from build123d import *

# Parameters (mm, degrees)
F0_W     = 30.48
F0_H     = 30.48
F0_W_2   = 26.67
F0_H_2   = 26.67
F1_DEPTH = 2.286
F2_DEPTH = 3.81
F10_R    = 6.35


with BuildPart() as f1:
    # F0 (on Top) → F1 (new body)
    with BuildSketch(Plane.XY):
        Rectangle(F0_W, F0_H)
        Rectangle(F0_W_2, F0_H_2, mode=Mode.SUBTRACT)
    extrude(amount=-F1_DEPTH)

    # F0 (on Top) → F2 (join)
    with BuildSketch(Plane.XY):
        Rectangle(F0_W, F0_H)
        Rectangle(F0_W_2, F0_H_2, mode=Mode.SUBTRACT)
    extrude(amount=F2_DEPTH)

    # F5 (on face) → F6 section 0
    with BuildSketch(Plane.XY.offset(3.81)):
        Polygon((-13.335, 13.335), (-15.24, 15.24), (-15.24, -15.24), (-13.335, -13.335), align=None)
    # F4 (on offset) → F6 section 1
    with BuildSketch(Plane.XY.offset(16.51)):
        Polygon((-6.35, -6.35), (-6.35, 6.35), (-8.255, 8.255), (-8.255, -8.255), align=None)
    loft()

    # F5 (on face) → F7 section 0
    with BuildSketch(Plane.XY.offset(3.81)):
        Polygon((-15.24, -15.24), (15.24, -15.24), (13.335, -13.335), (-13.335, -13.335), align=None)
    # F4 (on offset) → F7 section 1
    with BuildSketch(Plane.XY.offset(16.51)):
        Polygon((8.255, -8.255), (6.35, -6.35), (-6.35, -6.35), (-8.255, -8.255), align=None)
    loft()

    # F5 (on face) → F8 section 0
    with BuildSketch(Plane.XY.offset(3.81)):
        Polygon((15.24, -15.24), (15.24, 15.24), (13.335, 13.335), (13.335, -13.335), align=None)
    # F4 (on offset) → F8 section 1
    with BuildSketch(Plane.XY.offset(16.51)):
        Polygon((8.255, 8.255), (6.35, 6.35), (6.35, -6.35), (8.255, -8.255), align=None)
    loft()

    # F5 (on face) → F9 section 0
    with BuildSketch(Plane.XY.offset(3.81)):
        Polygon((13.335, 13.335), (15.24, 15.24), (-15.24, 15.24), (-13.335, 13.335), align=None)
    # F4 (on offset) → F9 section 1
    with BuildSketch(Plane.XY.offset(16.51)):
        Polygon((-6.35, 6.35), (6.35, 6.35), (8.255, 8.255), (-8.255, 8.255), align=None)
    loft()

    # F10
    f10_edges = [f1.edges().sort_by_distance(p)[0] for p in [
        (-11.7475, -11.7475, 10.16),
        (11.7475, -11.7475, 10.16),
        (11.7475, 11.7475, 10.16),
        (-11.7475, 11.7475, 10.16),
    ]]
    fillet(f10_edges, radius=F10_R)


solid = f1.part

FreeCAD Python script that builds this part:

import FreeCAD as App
import Part
import Sketcher
Q = App.Units.Quantity


def edges_at(feature, points):
    """Names of the edges that pass closest to the given points."""
    edges = feature.Shape.Edges
    near = lambda p: min(range(len(edges)), key=lambda i: edges[i].distToShape(Part.Vertex(*p))[0])
    return sorted({f"Edge{near(p) + 1}" for p in points})

doc = App.newDocument("Part")
params = doc.addObject("Spreadsheet::Sheet", "Params")
for row, (alias, value) in enumerate([
    ("sketch1_width", "1.2 in"),
    ("sketch1_width2", "1.05 in"),
    ("pad1_length", "0.09 in"),
    ("sketch2_width", "1.2 in"),
    ("sketch2_width2", "1.05 in"),
    ("pad2_length", "0.15 in"),
    ("sketch3_height", "1.2 in"),
    ("sketch3_height2", "1.05 in"),
    ("sketch4_height", "0.5 in"),
    ("sketch4_height2", "0.65 in"),
    ("sketch5_width", "1.2 in"),
    ("sketch5_width2", "1.05 in"),
    ("sketch6_width", "0.5 in"),
    ("sketch6_width2", "0.65 in"),
    ("sketch7_height", "1.2 in"),
    ("sketch7_height2", "1.05 in"),
    ("sketch8_height", "0.5 in"),
    ("sketch8_height2", "0.65 in"),
    ("sketch9_width", "1.2 in"),
    ("sketch9_width2", "1.05 in"),
    ("sketch10_width", "0.5 in"),
    ("sketch10_width2", "0.65 in"),
    ("fillet_radius", "0.25 in"),
], start=1):
    params.set(f"A{row}", alias)
    params.set(f"B{row}", "=" + value)
    params.setAlias(f"B{row}", alias)

body = doc.addObject("PartDesign::Body", "Body")

# Sketch on XY plane
sketch1 = body.newObject("Sketcher::SketchObject", "Sketch")
sketch1.AttachmentSupport = (doc.getObject("XY_Plane"), [""])
sketch1.MapMode = "FlatFace"
sketch1.addGeometry([
    Part.LineSegment(App.Vector(-15, 15, 0), App.Vector(-15, -15, 0)),  # 0
    Part.LineSegment(App.Vector(-15, -15, 0), App.Vector(15, -15, 0)),  # 1
    Part.LineSegment(App.Vector(15, -15, 0), App.Vector(15, 15, 0)),  # 2
    Part.LineSegment(App.Vector(15, 15, 0), App.Vector(-15, 15, 0)),  # 3
    Part.LineSegment(App.Vector(13, -13, 0), App.Vector(-13, -13, 0)),  # 4
    Part.LineSegment(App.Vector(-13, -13, 0), App.Vector(-13, 13, 0)),  # 5
    Part.LineSegment(App.Vector(-13, 13, 0), App.Vector(13, 13, 0)),  # 6
    Part.LineSegment(App.Vector(13, 13, 0), App.Vector(13, -13, 0)),  # 7
], False)
sketch1.addConstraint([
    Sketcher.Constraint("Coincident", 0, 2, 1, 1),
    Sketcher.Constraint("Coincident", 1, 2, 2, 1),
    Sketcher.Constraint("Coincident", 2, 2, 3, 1),
    Sketcher.Constraint("Coincident", 3, 2, 0, 1),
    Sketcher.Constraint("Coincident", 4, 2, 5, 1),
    Sketcher.Constraint("Coincident", 5, 2, 6, 1),
    Sketcher.Constraint("Coincident", 6, 2, 7, 1),
    Sketcher.Constraint("Coincident", 7, 2, 4, 1),
    Sketcher.Constraint("Vertical", 0),
    Sketcher.Constraint("Horizontal", 1),
    Sketcher.Constraint("Vertical", 2),
    Sketcher.Constraint("Horizontal", 3),
    Sketcher.Constraint("Horizontal", 4),
    Sketcher.Constraint("Vertical", 5),
    Sketcher.Constraint("Horizontal", 6),
    Sketcher.Constraint("Vertical", 7),
    Sketcher.Constraint("Symmetric", 0, 2, 2, 2, -1, 1),
    Sketcher.Constraint("Symmetric", 4, 2, 6, 2, -1, 1),
    Sketcher.Constraint("Equal", 3, 0),
    Sketcher.Constraint("Equal", 6, 5),
    Sketcher.Constraint("DistanceX", 1, 1, 1, 2, Q("1.2 in")),
    Sketcher.Constraint("DistanceX", 4, 2, 4, 1, Q("1.05 in")),
])
sketch1.setExpression("Constraints[20]", "Params.sketch1_width")
sketch1.setExpression("Constraints[21]", "Params.sketch1_width2")
pad1 = body.newObject("PartDesign::Pad", "Pad")
pad1.Profile = sketch1
pad1.setExpression("Length", "Params.pad1_length")
pad1.Reversed = True

# Sketch on XY plane
sketch2 = body.newObject("Sketcher::SketchObject", "Sketch001")
sketch2.AttachmentSupport = (doc.getObject("XY_Plane"), [""])
sketch2.MapMode = "FlatFace"
sketch2.addGeometry([
    Part.LineSegment(App.Vector(-15, 15, 0), App.Vector(-15, -15, 0)),  # 0
    Part.LineSegment(App.Vector(-15, -15, 0), App.Vector(15, -15, 0)),  # 1
    Part.LineSegment(App.Vector(15, -15, 0), App.Vector(15, 15, 0)),  # 2
    Part.LineSegment(App.Vector(15, 15, 0), App.Vector(-15, 15, 0)),  # 3
    Part.LineSegment(App.Vector(13, -13, 0), App.Vector(-13, -13, 0)),  # 4
    Part.LineSegment(App.Vector(-13, -13, 0), App.Vector(-13, 13, 0)),  # 5
    Part.LineSegment(App.Vector(-13, 13, 0), App.Vector(13, 13, 0)),  # 6
    Part.LineSegment(App.Vector(13, 13, 0), App.Vector(13, -13, 0)),  # 7
], False)
sketch2.addConstraint([
    Sketcher.Constraint("Coincident", 0, 2, 1, 1),
    Sketcher.Constraint("Coincident", 1, 2, 2, 1),
    Sketcher.Constraint("Coincident", 2, 2, 3, 1),
    Sketcher.Constraint("Coincident", 3, 2, 0, 1),
    Sketcher.Constraint("Coincident", 4, 2, 5, 1),
    Sketcher.Constraint("Coincident", 5, 2, 6, 1),
    Sketcher.Constraint("Coincident", 6, 2, 7, 1),
    Sketcher.Constraint("Coincident", 7, 2, 4, 1),
    Sketcher.Constraint("Vertical", 0),
    Sketcher.Constraint("Horizontal", 1),
    Sketcher.Constraint("Vertical", 2),
    Sketcher.Constraint("Horizontal", 3),
    Sketcher.Constraint("Horizontal", 4),
    Sketcher.Constraint("Vertical", 5),
    Sketcher.Constraint("Horizontal", 6),
    Sketcher.Constraint("Vertical", 7),
    Sketcher.Constraint("Symmetric", 0, 2, 2, 2, -1, 1),
    Sketcher.Constraint("Symmetric", 4, 2, 6, 2, -1, 1),
    Sketcher.Constraint("Equal", 3, 0),
    Sketcher.Constraint("Equal", 6, 5),
    Sketcher.Constraint("DistanceX", 1, 1, 1, 2, Q("1.2 in")),
    Sketcher.Constraint("DistanceX", 4, 2, 4, 1, Q("1.05 in")),
])
sketch2.setExpression("Constraints[20]", "Params.sketch2_width")
sketch2.setExpression("Constraints[21]", "Params.sketch2_width2")
pad2 = body.newObject("PartDesign::Pad", "Pad001")
pad2.Profile = sketch2
pad2.setExpression("Length", "Params.pad2_length")

# Sketch on XY plane
sketch3 = body.newObject("Sketcher::SketchObject", "Sketch002")
sketch3.AttachmentSupport = (doc.getObject("XY_Plane"), [""])
sketch3.MapMode = "FlatFace"
sketch3.AttachmentOffset = App.Placement(App.Vector(0, 0, 0.15 * 25.4), App.Rotation())
sketch3.addGeometry([
    Part.LineSegment(App.Vector(-13.3, 13.3, 0), App.Vector(-15.2, 15.2, 0)),
    Part.LineSegment(App.Vector(-15.2, 15.2, 0), App.Vector(-15.2, -15.2, 0)),
    Part.LineSegment(App.Vector(-15.2, -15.2, 0), App.Vector(-13.3, -13.3, 0)),
    Part.LineSegment(App.Vector(-13.3, -13.3, 0), App.Vector(-13.3, 13.3, 0)),
], False)
sketch3.addConstraint([
    Sketcher.Constraint("Coincident", 0, 2, 1, 1),
    Sketcher.Constraint("Coincident", 1, 2, 2, 1),
    Sketcher.Constraint("Coincident", 2, 2, 3, 1),
    Sketcher.Constraint("Coincident", 3, 2, 0, 1),
    Sketcher.Constraint("Vertical", 1),
    Sketcher.Constraint("Vertical", 3),
    Sketcher.Constraint("Perpendicular", 0, 2),
    Sketcher.Constraint("Equal", 0, 2),
    Sketcher.Constraint("DistanceY", 1, 2, 1, 1, Q("1.2 in")),
    Sketcher.Constraint("DistanceY", 3, 1, 3, 2, Q("1.05 in")),
    Sketcher.Constraint("DistanceX", 0, 2, -1, 1, Q("0.6 in")),
    Sketcher.Constraint("DistanceY", -1, 1, 0, 2, Q("0.6 in")),
])
sketch3.setExpression("Constraints[8]", "Params.sketch3_height")
sketch3.setExpression("Constraints[9]", "Params.sketch3_height2")

# Sketch on XY plane
sketch4 = body.newObject("Sketcher::SketchObject", "Sketch003")
sketch4.AttachmentSupport = (doc.getObject("XY_Plane"), [""])
sketch4.MapMode = "FlatFace"
sketch4.AttachmentOffset = App.Placement(App.Vector(0, 0, 0.65 * 25.4), App.Rotation())
sketch4.addGeometry([
    Part.LineSegment(App.Vector(-6.3, -6.3, 0), App.Vector(-6.3, 6.3, 0)),
    Part.LineSegment(App.Vector(-6.3, 6.3, 0), App.Vector(-8.3, 8.3, 0)),
    Part.LineSegment(App.Vector(-8.3, 8.3, 0), App.Vector(-8.3, -8.3, 0)),
    Part.LineSegment(App.Vector(-8.3, -8.3, 0), App.Vector(-6.3, -6.3, 0)),
], False)
sketch4.addConstraint([
    Sketcher.Constraint("Coincident", 0, 2, 1, 1),
    Sketcher.Constraint("Coincident", 1, 2, 2, 1),
    Sketcher.Constraint("Coincident", 2, 2, 3, 1),
    Sketcher.Constraint("Coincident", 3, 2, 0, 1),
    Sketcher.Constraint("Vertical", 0),
    Sketcher.Constraint("Vertical", 2),
    Sketcher.Constraint("Perpendicular", 1, 3),
    Sketcher.Constraint("Equal", 1, 3),
    Sketcher.Constraint("DistanceY", 0, 1, 0, 2, Q("0.5 in")),
    Sketcher.Constraint("DistanceY", 2, 2, 2, 1, Q("0.65 in")),
    Sketcher.Constraint("DistanceX", 0, 2, -1, 1, Q("0.25 in")),
    Sketcher.Constraint("DistanceY", -1, 1, 0, 2, Q("0.25 in")),
])
sketch4.setExpression("Constraints[8]", "Params.sketch4_height")
sketch4.setExpression("Constraints[9]", "Params.sketch4_height2")

additiveloft = body.newObject("PartDesign::AdditiveLoft", "AdditiveLoft")
additiveloft.Profile = sketch3
additiveloft.Sections = [sketch4]

# Sketch on XY plane
sketch5 = body.newObject("Sketcher::SketchObject", "Sketch004")
sketch5.AttachmentSupport = (doc.getObject("XY_Plane"), [""])
sketch5.MapMode = "FlatFace"
sketch5.AttachmentOffset = App.Placement(App.Vector(0, 0, 0.15 * 25.4), App.Rotation())
sketch5.addGeometry([
    Part.LineSegment(App.Vector(-15.2, -15.2, 0), App.Vector(15.2, -15.2, 0)),
    Part.LineSegment(App.Vector(15.2, -15.2, 0), App.Vector(13.3, -13.3, 0)),
    Part.LineSegment(App.Vector(13.3, -13.3, 0), App.Vector(-13.3, -13.3, 0)),
    Part.LineSegment(App.Vector(-13.3, -13.3, 0), App.Vector(-15.2, -15.2, 0)),
], False)
sketch5.addConstraint([
    Sketcher.Constraint("Coincident", 0, 2, 1, 1),
    Sketcher.Constraint("Coincident", 1, 2, 2, 1),
    Sketcher.Constraint("Coincident", 2, 2, 3, 1),
    Sketcher.Constraint("Coincident", 3, 2, 0, 1),
    Sketcher.Constraint("Horizontal", 0),
    Sketcher.Constraint("Horizontal", 2),
    Sketcher.Constraint("Perpendicular", 1, 3),
    Sketcher.Constraint("Equal", 1, 3),
    Sketcher.Constraint("DistanceX", 0, 1, 0, 2, Q("1.2 in")),
    Sketcher.Constraint("DistanceX", 2, 2, 2, 1, Q("1.05 in")),
    Sketcher.Constraint("DistanceX", -1, 1, 0, 2, Q("0.6 in")),
    Sketcher.Constraint("DistanceY", 0, 2, -1, 1, Q("0.6 in")),
])
sketch5.setExpression("Constraints[8]", "Params.sketch5_width")
sketch5.setExpression("Constraints[9]", "Params.sketch5_width2")

# Sketch on XY plane
sketch6 = body.newObject("Sketcher::SketchObject", "Sketch005")
sketch6.AttachmentSupport = (doc.getObject("XY_Plane"), [""])
sketch6.MapMode = "FlatFace"
sketch6.AttachmentOffset = App.Placement(App.Vector(0, 0, 0.65 * 25.4), App.Rotation())
sketch6.addGeometry([
    Part.LineSegment(App.Vector(8.3, -8.3, 0), App.Vector(6.3, -6.3, 0)),
    Part.LineSegment(App.Vector(6.3, -6.3, 0), App.Vector(-6.3, -6.3, 0)),
    Part.LineSegment(App.Vector(-6.3, -6.3, 0), App.Vector(-8.3, -8.3, 0)),
    Part.LineSegment(App.Vector(-8.3, -8.3, 0), App.Vector(8.3, -8.3, 0)),
], False)
sketch6.addConstraint([
    Sketcher.Constraint("Coincident", 0, 2, 1, 1),
    Sketcher.Constraint("Coincident", 1, 2, 2, 1),
    Sketcher.Constraint("Coincident", 2, 2, 3, 1),
    Sketcher.Constraint("Coincident", 3, 2, 0, 1),
    Sketcher.Constraint("Horizontal", 1),
    Sketcher.Constraint("Horizontal", 3),
    Sketcher.Constraint("Perpendicular", 0, 2),
    Sketcher.Constraint("Equal", 0, 2),
    Sketcher.Constraint("DistanceX", 1, 2, 1, 1, Q("0.5 in")),
    Sketcher.Constraint("DistanceX", 3, 1, 3, 2, Q("0.65 in")),
    Sketcher.Constraint("DistanceX", -1, 1, 0, 2, Q("0.25 in")),
    Sketcher.Constraint("DistanceY", 0, 2, -1, 1, Q("0.25 in")),
])
sketch6.setExpression("Constraints[8]", "Params.sketch6_width")
sketch6.setExpression("Constraints[9]", "Params.sketch6_width2")

additiveloft2 = body.newObject("PartDesign::AdditiveLoft", "AdditiveLoft001")
additiveloft2.Profile = sketch5
additiveloft2.Sections = [sketch6]

# Sketch on XY plane
sketch7 = body.newObject("Sketcher::SketchObject", "Sketch006")
sketch7.AttachmentSupport = (doc.getObject("XY_Plane"), [""])
sketch7.MapMode = "FlatFace"
sketch7.AttachmentOffset = App.Placement(App.Vector(0, 0, 0.15 * 25.4), App.Rotation())
sketch7.addGeometry([
    Part.LineSegment(App.Vector(15.2, -15.2, 0), App.Vector(15.2, 15.2, 0)),
    Part.LineSegment(App.Vector(15.2, 15.2, 0), App.Vector(13.3, 13.3, 0)),
    Part.LineSegment(App.Vector(13.3, 13.3, 0), App.Vector(13.3, -13.3, 0)),
    Part.LineSegment(App.Vector(13.3, -13.3, 0), App.Vector(15.2, -15.2, 0)),
], False)
sketch7.addConstraint([
    Sketcher.Constraint("Coincident", 0, 2, 1, 1),
    Sketcher.Constraint("Coincident", 1, 2, 2, 1),
    Sketcher.Constraint("Coincident", 2, 2, 3, 1),
    Sketcher.Constraint("Coincident", 3, 2, 0, 1),
    Sketcher.Constraint("Vertical", 0),
    Sketcher.Constraint("Vertical", 2),
    Sketcher.Constraint("Perpendicular", 1, 3),
    Sketcher.Constraint("Equal", 1, 3),
    Sketcher.Constraint("DistanceY", 0, 1, 0, 2, Q("1.2 in")),
    Sketcher.Constraint("DistanceY", 2, 2, 2, 1, Q("1.05 in")),
    Sketcher.Constraint("DistanceX", -1, 1, 0, 2, Q("0.6 in")),
    Sketcher.Constraint("DistanceY", -1, 1, 0, 2, Q("0.6 in")),
])
sketch7.setExpression("Constraints[8]", "Params.sketch7_height")
sketch7.setExpression("Constraints[9]", "Params.sketch7_height2")

# Sketch on XY plane
sketch8 = body.newObject("Sketcher::SketchObject", "Sketch007")
sketch8.AttachmentSupport = (doc.getObject("XY_Plane"), [""])
sketch8.MapMode = "FlatFace"
sketch8.AttachmentOffset = App.Placement(App.Vector(0, 0, 0.65 * 25.4), App.Rotation())
sketch8.addGeometry([
    Part.LineSegment(App.Vector(8.3, 8.3, 0), App.Vector(6.3, 6.3, 0)),
    Part.LineSegment(App.Vector(6.3, 6.3, 0), App.Vector(6.3, -6.3, 0)),
    Part.LineSegment(App.Vector(6.3, -6.3, 0), App.Vector(8.3, -8.3, 0)),
    Part.LineSegment(App.Vector(8.3, -8.3, 0), App.Vector(8.3, 8.3, 0)),
], False)
sketch8.addConstraint([
    Sketcher.Constraint("Coincident", 0, 2, 1, 1),
    Sketcher.Constraint("Coincident", 1, 2, 2, 1),
    Sketcher.Constraint("Coincident", 2, 2, 3, 1),
    Sketcher.Constraint("Coincident", 3, 2, 0, 1),
    Sketcher.Constraint("Vertical", 1),
    Sketcher.Constraint("Vertical", 3),
    Sketcher.Constraint("Perpendicular", 0, 2),
    Sketcher.Constraint("Equal", 0, 2),
    Sketcher.Constraint("DistanceY", 1, 2, 1, 1, Q("0.5 in")),
    Sketcher.Constraint("DistanceY", 3, 1, 3, 2, Q("0.65 in")),
    Sketcher.Constraint("DistanceX", -1, 1, 0, 2, Q("0.25 in")),
    Sketcher.Constraint("DistanceY", -1, 1, 0, 2, Q("0.25 in")),
])
sketch8.setExpression("Constraints[8]", "Params.sketch8_height")
sketch8.setExpression("Constraints[9]", "Params.sketch8_height2")

additiveloft3 = body.newObject("PartDesign::AdditiveLoft", "AdditiveLoft002")
additiveloft3.Profile = sketch7
additiveloft3.Sections = [sketch8]

# Sketch on XY plane
sketch9 = body.newObject("Sketcher::SketchObject", "Sketch008")
sketch9.AttachmentSupport = (doc.getObject("XY_Plane"), [""])
sketch9.MapMode = "FlatFace"
sketch9.AttachmentOffset = App.Placement(App.Vector(0, 0, 0.15 * 25.4), App.Rotation())
sketch9.addGeometry([
    Part.LineSegment(App.Vector(13.3, 13.3, 0), App.Vector(15.2, 15.2, 0)),
    Part.LineSegment(App.Vector(15.2, 15.2, 0), App.Vector(-15.2, 15.2, 0)),
    Part.LineSegment(App.Vector(-15.2, 15.2, 0), App.Vector(-13.3, 13.3, 0)),
    Part.LineSegment(App.Vector(-13.3, 13.3, 0), App.Vector(13.3, 13.3, 0)),
], False)
sketch9.addConstraint([
    Sketcher.Constraint("Coincident", 0, 2, 1, 1),
    Sketcher.Constraint("Coincident", 1, 2, 2, 1),
    Sketcher.Constraint("Coincident", 2, 2, 3, 1),
    Sketcher.Constraint("Coincident", 3, 2, 0, 1),
    Sketcher.Constraint("Horizontal", 1),
    Sketcher.Constraint("Horizontal", 3),
    Sketcher.Constraint("Perpendicular", 0, 2),
    Sketcher.Constraint("Equal", 0, 2),
    Sketcher.Constraint("DistanceX", 1, 2, 1, 1, Q("1.2 in")),
    Sketcher.Constraint("DistanceX", 3, 1, 3, 2, Q("1.05 in")),
    Sketcher.Constraint("DistanceX", -1, 1, 0, 2, Q("0.6 in")),
    Sketcher.Constraint("DistanceY", -1, 1, 0, 2, Q("0.6 in")),
])
sketch9.setExpression("Constraints[8]", "Params.sketch9_width")
sketch9.setExpression("Constraints[9]", "Params.sketch9_width2")

# Sketch on XY plane
sketch10 = body.newObject("Sketcher::SketchObject", "Sketch009")
sketch10.AttachmentSupport = (doc.getObject("XY_Plane"), [""])
sketch10.MapMode = "FlatFace"
sketch10.AttachmentOffset = App.Placement(App.Vector(0, 0, 0.65 * 25.4), App.Rotation())
sketch10.addGeometry([
    Part.LineSegment(App.Vector(-6.3, 6.3, 0), App.Vector(6.3, 6.3, 0)),
    Part.LineSegment(App.Vector(6.3, 6.3, 0), App.Vector(8.3, 8.3, 0)),
    Part.LineSegment(App.Vector(8.3, 8.3, 0), App.Vector(-8.3, 8.3, 0)),
    Part.LineSegment(App.Vector(-8.3, 8.3, 0), App.Vector(-6.3, 6.3, 0)),
], False)
sketch10.addConstraint([
    Sketcher.Constraint("Coincident", 0, 2, 1, 1),
    Sketcher.Constraint("Coincident", 1, 2, 2, 1),
    Sketcher.Constraint("Coincident", 2, 2, 3, 1),
    Sketcher.Constraint("Coincident", 3, 2, 0, 1),
    Sketcher.Constraint("Horizontal", 0),
    Sketcher.Constraint("Horizontal", 2),
    Sketcher.Constraint("Perpendicular", 1, 3),
    Sketcher.Constraint("Equal", 1, 3),
    Sketcher.Constraint("DistanceX", 0, 1, 0, 2, Q("0.5 in")),
    Sketcher.Constraint("DistanceX", 2, 2, 2, 1, Q("0.65 in")),
    Sketcher.Constraint("DistanceX", -1, 1, 0, 2, Q("0.25 in")),
    Sketcher.Constraint("DistanceY", -1, 1, 0, 2, Q("0.25 in")),
])
sketch10.setExpression("Constraints[8]", "Params.sketch10_width")
sketch10.setExpression("Constraints[9]", "Params.sketch10_width2")

additiveloft4 = body.newObject("PartDesign::AdditiveLoft", "AdditiveLoft003")
additiveloft4.Profile = sketch9
additiveloft4.Sections = [sketch10]
doc.recompute()

fillet = body.newObject("PartDesign::Fillet", "Fillet")
fillet.Base = (additiveloft4, edges_at(additiveloft4, [
    (-11.748, -11.748, 10.16),
    (11.748, -11.748, 10.16),
    (11.748, 11.748, 10.16),
    (-11.748, 11.748, 10.16),
]))
fillet.setExpression("Radius", "Params.fillet_radius")

doc.recompute()
